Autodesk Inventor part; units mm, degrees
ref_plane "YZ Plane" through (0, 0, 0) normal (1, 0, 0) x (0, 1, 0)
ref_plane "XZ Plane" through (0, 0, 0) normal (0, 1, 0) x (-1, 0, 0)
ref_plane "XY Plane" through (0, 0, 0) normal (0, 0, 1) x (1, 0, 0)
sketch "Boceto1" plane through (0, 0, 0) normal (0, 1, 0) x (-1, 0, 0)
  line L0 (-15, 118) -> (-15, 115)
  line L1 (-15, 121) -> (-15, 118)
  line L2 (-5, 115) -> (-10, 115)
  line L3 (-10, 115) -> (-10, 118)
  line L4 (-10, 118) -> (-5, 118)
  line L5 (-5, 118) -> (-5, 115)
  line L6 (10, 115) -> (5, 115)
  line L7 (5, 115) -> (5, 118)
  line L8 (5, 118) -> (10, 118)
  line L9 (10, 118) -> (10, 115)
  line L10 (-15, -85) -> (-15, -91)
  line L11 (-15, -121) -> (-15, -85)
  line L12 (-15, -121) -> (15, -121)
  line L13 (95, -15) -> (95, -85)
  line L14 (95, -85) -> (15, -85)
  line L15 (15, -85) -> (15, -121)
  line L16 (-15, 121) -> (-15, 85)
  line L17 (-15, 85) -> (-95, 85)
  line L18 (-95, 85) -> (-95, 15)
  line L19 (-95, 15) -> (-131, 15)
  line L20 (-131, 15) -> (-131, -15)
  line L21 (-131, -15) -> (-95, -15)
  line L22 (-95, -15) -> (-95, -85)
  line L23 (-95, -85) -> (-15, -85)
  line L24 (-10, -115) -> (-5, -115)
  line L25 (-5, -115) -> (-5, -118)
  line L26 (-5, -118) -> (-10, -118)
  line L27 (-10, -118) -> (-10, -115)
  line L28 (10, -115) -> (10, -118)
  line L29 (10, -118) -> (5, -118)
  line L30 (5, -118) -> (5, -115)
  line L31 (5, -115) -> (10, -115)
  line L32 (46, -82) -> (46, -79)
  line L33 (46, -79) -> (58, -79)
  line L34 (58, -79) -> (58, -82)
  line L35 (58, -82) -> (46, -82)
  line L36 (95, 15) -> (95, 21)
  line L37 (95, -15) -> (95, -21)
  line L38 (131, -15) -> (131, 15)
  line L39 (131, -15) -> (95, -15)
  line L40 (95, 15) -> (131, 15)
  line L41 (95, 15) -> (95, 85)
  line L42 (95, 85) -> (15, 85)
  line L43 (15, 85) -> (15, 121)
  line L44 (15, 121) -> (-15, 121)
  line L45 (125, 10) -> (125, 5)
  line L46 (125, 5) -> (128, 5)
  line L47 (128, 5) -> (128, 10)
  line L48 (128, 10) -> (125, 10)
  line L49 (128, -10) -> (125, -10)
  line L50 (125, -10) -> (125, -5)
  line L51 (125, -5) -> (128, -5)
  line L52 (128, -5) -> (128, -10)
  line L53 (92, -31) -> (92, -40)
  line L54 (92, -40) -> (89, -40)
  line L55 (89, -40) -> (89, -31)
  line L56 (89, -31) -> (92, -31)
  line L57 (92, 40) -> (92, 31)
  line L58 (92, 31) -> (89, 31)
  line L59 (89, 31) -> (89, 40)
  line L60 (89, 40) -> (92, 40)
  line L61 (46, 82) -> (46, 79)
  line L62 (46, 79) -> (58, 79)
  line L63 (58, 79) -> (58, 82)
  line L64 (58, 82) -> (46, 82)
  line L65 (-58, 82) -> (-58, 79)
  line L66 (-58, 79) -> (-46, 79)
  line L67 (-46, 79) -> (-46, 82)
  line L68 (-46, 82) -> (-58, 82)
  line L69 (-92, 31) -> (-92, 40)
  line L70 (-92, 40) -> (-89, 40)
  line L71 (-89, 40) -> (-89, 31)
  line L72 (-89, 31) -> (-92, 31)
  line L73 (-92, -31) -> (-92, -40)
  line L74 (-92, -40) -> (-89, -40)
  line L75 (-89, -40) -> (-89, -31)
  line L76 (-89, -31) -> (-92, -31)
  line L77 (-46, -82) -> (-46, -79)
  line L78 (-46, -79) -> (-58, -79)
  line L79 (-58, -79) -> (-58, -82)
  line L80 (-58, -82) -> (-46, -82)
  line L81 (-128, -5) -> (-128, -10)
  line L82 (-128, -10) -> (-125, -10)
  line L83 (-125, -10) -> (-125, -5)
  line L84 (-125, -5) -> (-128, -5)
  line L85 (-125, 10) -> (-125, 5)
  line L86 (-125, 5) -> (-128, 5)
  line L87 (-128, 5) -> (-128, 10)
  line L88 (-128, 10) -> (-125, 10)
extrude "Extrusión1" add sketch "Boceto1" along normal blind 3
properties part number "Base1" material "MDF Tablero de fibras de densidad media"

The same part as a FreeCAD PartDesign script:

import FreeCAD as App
import Part
import Sketcher

V = App.Vector
Q = App.Units.Quantity


def add_polygon(sketch, points):
    """Adds a closed chain of lines whose ends are joined by coincident constraints."""
    first, n = sketch.GeometryCount, len(points)
    for a, b in zip(points, points[1:] + points[:1]):
        sketch.addGeometry(Part.LineSegment(App.Vector(*a, 0), App.Vector(*b, 0)), False)
    for i in range(n):
        sketch.addConstraint(Sketcher.Constraint("Coincident", first + i, 2, first + (i + 1) % n, 1))

doc = App.newDocument("Part")
body = doc.addObject("PartDesign::Body", "Body")

# Sketch on XZ plane
sketch1 = body.newObject("Sketcher::SketchObject", "Sketch")
sketch1.AttachmentSupport = (doc.getObject("XZ_Plane"), [""])
sketch1.MapMode = "FlatFace"
add_polygon(sketch1, [(15, 121), (15, 85), (95, 85), (95, 15), (131, 15), (131, -15), (95, -15), (95, -85), (15, -85), (15, -121), (-15, -121), (-15, -85), (-95, -85), (-95, -15), (-131, -15), (-131, 15), (-95, 15), (-95, 85), (-15, 85), (-15, 121)])  # lines 0-19
add_polygon(sketch1, [(10, -118), (10, -115), (5, -115), (5, -118)])  # lines 20-23
add_polygon(sketch1, [(46, -79), (46, -82), (58, -82), (58, -79)])  # lines 24-27
add_polygon(sketch1, [(92, -40), (92, -31), (89, -31), (89, -40)])  # lines 28-31
add_polygon(sketch1, [(128, -10), (128, -5), (125, -5), (125, -10)])  # lines 32-35
add_polygon(sketch1, [(-5, -115), (-10, -115), (-10, -118), (-5, -118)])  # lines 36-39
add_polygon(sketch1, [(-58, -82), (-46, -82), (-46, -79), (-58, -79)])  # lines 40-43
add_polygon(sketch1, [(-89, -31), (-92, -31), (-92, -40), (-89, -40)])  # lines 44-47
add_polygon(sketch1, [(-128, -5), (-128, -10), (-125, -10), (-125, -5)])  # lines 48-51
add_polygon(sketch1, [(128, 10), (125, 10), (125, 5), (128, 5)])  # lines 52-55
add_polygon(sketch1, [(89, 31), (92, 31), (92, 40), (89, 40)])  # lines 56-59
add_polygon(sketch1, [(58, 79), (58, 82), (46, 82), (46, 79)])  # lines 60-63
add_polygon(sketch1, [(5, 118), (5, 115), (10, 115), (10, 118)])  # lines 64-67
add_polygon(sketch1, [(-125, 5), (-125, 10), (-128, 10), (-128, 5)])  # lines 68-71
add_polygon(sketch1, [(-89, 40), (-92, 40), (-92, 31), (-89, 31)])  # lines 72-75
add_polygon(sketch1, [(-46, 79), (-46, 82), (-58, 82), (-58, 79)])  # lines 76-79
add_polygon(sketch1, [(-10, 118), (-10, 115), (-5, 115), (-5, 118)])  # lines 80-83
sketch1.addConstraint([
    Sketcher.Constraint("Vertical", 0),
    Sketcher.Constraint("Horizontal", 1),
    Sketcher.Constraint("Vertical", 2),
    Sketcher.Constraint("Horizontal", 3),
    Sketcher.Constraint("Vertical", 4),
    Sketcher.Constraint("Horizontal", 5),
    Sketcher.Constraint("Vertical", 6),
    Sketcher.Constraint("Horizontal", 7),
    Sketcher.Constraint("Vertical", 8),
    Sketcher.Constraint("Horizontal", 9),
    Sketcher.Constraint("Vertical", 10),
    Sketcher.Constraint("Horizontal", 11),
    Sketcher.Constraint("Vertical", 12),
    Sketcher.Constraint("Horizontal", 13),
    Sketcher.Constraint("Vertical", 14),
    Sketcher.Constraint("Horizontal", 15),
    Sketcher.Constraint("Vertical", 16),
    Sketcher.Constraint("Horizontal", 17),
    Sketcher.Constraint("Vertical", 18),
    Sketcher.Constraint("Horizontal", 19),
    Sketcher.Constraint("Vertical", 20),
    Sketcher.Constraint("Horizontal", 21),
    Sketcher.Constraint("Vertical", 22),
    Sketcher.Constraint("Horizontal", 23),
    Sketcher.Constraint("Vertical", 24),
    Sketcher.Constraint("Horizontal", 25),
    Sketcher.Constraint("Vertical", 26),
    Sketcher.Constraint("Horizontal", 27),
    Sketcher.Constraint("Vertical", 28),
    Sketcher.Constraint("Horizontal", 29),
    Sketcher.Constraint("Vertical", 30),
    Sketcher.Constraint("Horizontal", 31),
    Sketcher.Constraint("Vertical", 32),
    Sketcher.Constraint("Horizontal", 33),
    Sketcher.Constraint("Vertical", 34),
    Sketcher.Constraint("Horizontal", 35),
    Sketcher.Constraint("Horizontal", 36),
    Sketcher.Constraint("Vertical", 37),
    Sketcher.Constraint("Horizontal", 38),
    Sketcher.Constraint("Vertical", 39),
    Sketcher.Constraint("Horizontal", 40),
    Sketcher.Constraint("Vertical", 41),
    Sketcher.Constraint("Horizontal", 42),
    Sketcher.Constraint("Vertical", 43),
    Sketcher.Constraint("Horizontal", 44),
    Sketcher.Constraint("Vertical", 45),
    Sketcher.Constraint("Horizontal", 46),
    Sketcher.Constraint("Vertical", 47),
    Sketcher.Constraint("Vertical", 48),
    Sketcher.Constraint("Horizontal", 49),
    Sketcher.Constraint("Vertical", 50),
    Sketcher.Constraint("Horizontal", 51),
    Sketcher.Constraint("Horizontal", 52),
    Sketcher.Constraint("Vertical", 53),
    Sketcher.Constraint("Horizontal", 54),
    Sketcher.Constraint("Vertical", 55),
    Sketcher.Constraint("Horizontal", 56),
    Sketcher.Constraint("Vertical", 57),
    Sketcher.Constraint("Horizontal", 58),
    Sketcher.Constraint("Vertical", 59),
    Sketcher.Constraint("Vertical", 60),
    Sketcher.Constraint("Horizontal", 61),
    Sketcher.Constraint("Vertical", 62),
    Sketcher.Constraint("Horizontal", 63),
    Sketcher.Constraint("Vertical", 64),
    Sketcher.Constraint("Horizontal", 65),
    Sketcher.Constraint("Vertical", 66),
    Sketcher.Constraint("Horizontal", 67),
    Sketcher.Constraint("Vertical", 68),
    Sketcher.Constraint("Horizontal", 69),
    Sketcher.Constraint("Vertical", 70),
    Sketcher.Constraint("Horizontal", 71),
    Sketcher.Constraint("Horizontal", 72),
    Sketcher.Constraint("Vertical", 73),
    Sketcher.Constraint("Horizontal", 74),
    Sketcher.Constraint("Vertical", 75),
    Sketcher.Constraint("Vertical", 76),
    Sketcher.Constraint("Horizontal", 77),
    Sketcher.Constraint("Vertical", 78),
    Sketcher.Constraint("Horizontal", 79),
    Sketcher.Constraint("Vertical", 80),
    Sketcher.Constraint("Horizontal", 81),
    Sketcher.Constraint("Vertical", 82),
    Sketcher.Constraint("Horizontal", 83),
    Sketcher.Constraint("Symmetric", 0, 2, 10, 2, -1, 1),
    Sketcher.Constraint("Symmetric", 2, 2, 12, 2, -1, 1),
    Sketcher.Constraint("Symmetric", 4, 2, 14, 2, -1, 1),
    Sketcher.Constraint("Symmetric", 6, 2, 16, 2, -1, 1),
    Sketcher.Constraint("Symmetric", 8, 2, 18, 2, -1, 1),
    Sketcher.Constraint("Symmetric", 49, 2, 52, 2, -1, 1),
    Sketcher.Constraint("Symmetric", 51, 2, 54, 2, -1, 1),
    Sketcher.Constraint("Symmetric", 44, 2, 56, 2, -1, 1),
    Sketcher.Constraint("Symmetric", 46, 2, 58, 2, -1, 1),
    Sketcher.Constraint("Symmetric", 43, 2, 60, 2, -1, 1),
    Sketcher.Constraint("Symmetric", 41, 2, 62, 2, -1, 1),
    Sketcher.Constraint("Symmetric", 39, 2, 64, 2, -1, 1),
    Sketcher.Constraint("Symmetric", 37, 2, 66, 2, -1, 1),
    Sketcher.Constraint("Symmetric", 34, 2, 68, 2, -1, 1),
    Sketcher.Constraint("Symmetric", 32, 2, 70, 2, -1, 1),
    Sketcher.Constraint("Symmetric", 31, 2, 72, 2, -1, 1),
    Sketcher.Constraint("Symmetric", 29, 2, 74, 2, -1, 1),
    Sketcher.Constraint("Symmetric", 24, 2, 76, 2, -1, 1),
    Sketcher.Constraint("Symmetric", 26, 2, 78, 2, -1, 1),
    Sketcher.Constraint("Symmetric", 20, 2, 80, 2, -1, 1),
    Sketcher.Constraint("Symmetric", 22, 2, 82, 2, -1, 1),
    Sketcher.Constraint("Symmetric", 7, 2, 10, 2, -2),
    Sketcher.Constraint("Symmetric", 5, 2, 12, 2, -2),
    Sketcher.Constraint("Symmetric", 20, 2, 36, 2, -2),
    Sketcher.Constraint("Symmetric", 22, 2, 38, 2, -2),
    Sketcher.Constraint("Symmetric", 24, 2, 40, 2, -2),
    Sketcher.Constraint("Symmetric", 26, 2, 42, 2, -2),
    Sketcher.Constraint("Symmetric", 28, 2, 44, 2, -2),
    Sketcher.Constraint("Symmetric", 30, 2, 46, 2, -2),
    Sketcher.Constraint("Symmetric", 35, 2, 48, 2, -2),
    Sketcher.Constraint("Symmetric", 33, 2, 50, 2, -2),
    Sketcher.Constraint("Equal", 31, 33),
    Sketcher.Constraint("Equal", 15, 0),
    Sketcher.Constraint("Equal", 19, 4),
    Sketcher.Constraint("Equal", 74, 20),
    Sketcher.Constraint("Equal", 22, 24),
    Sketcher.Constraint("Equal", 83, 32),
    Sketcher.Constraint("DistanceX", 1, 1, 1, 2, Q("80 mm")),
    Sketcher.Constraint("DistanceX", 3, 1, 3, 2, Q("36 mm")),
    Sketcher.Constraint("DistanceX", 9, 2, 9, 1, Q("30 mm")),
    Sketcher.Constraint("DistanceX", 21, 2, 21, 1, Q("5 mm")),
    Sketcher.Constraint("DistanceX", 25, 1, 25, 2, Q("12 mm")),
    Sketcher.Constraint("DistanceX", 29, 2, 29, 1, Q("3 mm")),
    Sketcher.Constraint("DistanceY", 2, 2, 2, 1, Q("70 mm")),
    Sketcher.Constraint("DistanceY", 28, 1, 28, 2, Q("9 mm")),
    Sketcher.Constraint("DistanceX", -1, 1, 20, 2, Q("10 mm")),
    Sketcher.Constraint("DistanceY", 20, 2, -1, 1, Q("115 mm")),
    Sketcher.Constraint("DistanceX", -1, 1, 24, 2, Q("46 mm")),
    Sketcher.Constraint("DistanceY", 24, 2, -1, 1, Q("82 mm")),
    Sketcher.Constraint("DistanceX", -1, 1, 28, 2, Q("92 mm")),
    Sketcher.Constraint("DistanceY", 28, 2, -1, 1, Q("31 mm")),
    Sketcher.Constraint("DistanceX", -1, 1, 32, 2, Q("128 mm")),
    Sketcher.Constraint("DistanceY", 32, 2, -1, 1, Q("5 mm")),
])
pad1 = body.newObject("PartDesign::Pad", "Pad")
pad1.Profile = sketch1
pad1.Length = 3
pad1.Reversed = True

doc.recompute()
